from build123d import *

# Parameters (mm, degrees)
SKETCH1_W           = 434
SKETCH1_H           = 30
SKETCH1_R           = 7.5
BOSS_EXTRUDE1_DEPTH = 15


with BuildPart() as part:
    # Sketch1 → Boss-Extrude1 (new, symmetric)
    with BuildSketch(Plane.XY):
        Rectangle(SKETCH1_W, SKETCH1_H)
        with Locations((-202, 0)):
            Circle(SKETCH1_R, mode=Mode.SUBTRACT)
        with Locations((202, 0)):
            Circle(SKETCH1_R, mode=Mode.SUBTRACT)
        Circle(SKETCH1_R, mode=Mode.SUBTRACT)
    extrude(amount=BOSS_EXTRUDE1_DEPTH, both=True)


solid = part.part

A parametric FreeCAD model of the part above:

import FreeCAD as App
import Part
import Sketcher
from FreeCAD import Vector
Q = App.Units.Quantity

doc = App.newDocument("Part")
body = doc.addObject("PartDesign::Body", "Body")

# Sketch on XY plane
sketch1 = body.newObject("Sketcher::SketchObject", "Sketch")
sketch1.AttachmentSupport = (doc.getObject("XY_Plane"), [""])
sketch1.MapMode = "FlatFace"
sketch1.addGeometry([
    Part.LineSegment(Vector(-217, 15, 0), Vector(-217, -15, 0)),  # 0
    Part.LineSegment(Vector(-217, -15, 0), Vector(217, -15, 0)),  # 1
    Part.LineSegment(Vector(217, -15, 0), Vector(217, 15, 0)),  # 2
    Part.LineSegment(Vector(217, 15, 0), Vector(-217, 15, 0)),  # 3
    Part.Circle(Vector(-202, 0, 0), Vector(0, 0, 1), 8),  # 4
    Part.Circle(Vector(0, 0, 0), Vector(0, 0, 1), 8),  # 5
    Part.Circle(Vector(202, 0, 0), Vector(0, 0, 1), 8),  # 6
], False)
sketch1.addConstraint([
    Sketcher.Constraint("Coincident", 0, 2, 1, 1),
    Sketcher.Constraint("Coincident", 1, 2, 2, 1),
    Sketcher.Constraint("Coincident", 2, 2, 3, 1),
    Sketcher.Constraint("Coincident", 3, 2, 0, 1),
    Sketcher.Constraint("Vertical", 0),
    Sketcher.Constraint("Horizontal", 1),
    Sketcher.Constraint("Vertical", 2),
    Sketcher.Constraint("Horizontal", 3),
    Sketcher.Constraint("Coincident", 5, 3, -1, 1),
    Sketcher.Constraint("Equal", 4, 5),
    Sketcher.Constraint("Equal", 5, 6),
    Sketcher.Constraint("Symmetric", 4, 3, 6, 3, -1, 1),
    Sketcher.Constraint("Symmetric", 0, 2, 2, 2, -1, 1),
    Sketcher.Constraint("PointOnObject", 4, 3, -1),
    Sketcher.Constraint("Diameter", 4, Q("15 mm")),
    Sketcher.Constraint("DistanceX", 1, 1, 1, 2, Q("434 mm")),
    Sketcher.Constraint("DistanceY", 0, 2, 0, 1, Q("30 mm")),
    Sketcher.Constraint("DistanceX", 4, 3, -1, 1, Q("202 mm")),
])
pad1 = body.newObject("PartDesign::Pad", "Pad")
pad1.Profile = sketch1
pad1.Length = 30
pad1.Midplane = True

doc.recompute()
